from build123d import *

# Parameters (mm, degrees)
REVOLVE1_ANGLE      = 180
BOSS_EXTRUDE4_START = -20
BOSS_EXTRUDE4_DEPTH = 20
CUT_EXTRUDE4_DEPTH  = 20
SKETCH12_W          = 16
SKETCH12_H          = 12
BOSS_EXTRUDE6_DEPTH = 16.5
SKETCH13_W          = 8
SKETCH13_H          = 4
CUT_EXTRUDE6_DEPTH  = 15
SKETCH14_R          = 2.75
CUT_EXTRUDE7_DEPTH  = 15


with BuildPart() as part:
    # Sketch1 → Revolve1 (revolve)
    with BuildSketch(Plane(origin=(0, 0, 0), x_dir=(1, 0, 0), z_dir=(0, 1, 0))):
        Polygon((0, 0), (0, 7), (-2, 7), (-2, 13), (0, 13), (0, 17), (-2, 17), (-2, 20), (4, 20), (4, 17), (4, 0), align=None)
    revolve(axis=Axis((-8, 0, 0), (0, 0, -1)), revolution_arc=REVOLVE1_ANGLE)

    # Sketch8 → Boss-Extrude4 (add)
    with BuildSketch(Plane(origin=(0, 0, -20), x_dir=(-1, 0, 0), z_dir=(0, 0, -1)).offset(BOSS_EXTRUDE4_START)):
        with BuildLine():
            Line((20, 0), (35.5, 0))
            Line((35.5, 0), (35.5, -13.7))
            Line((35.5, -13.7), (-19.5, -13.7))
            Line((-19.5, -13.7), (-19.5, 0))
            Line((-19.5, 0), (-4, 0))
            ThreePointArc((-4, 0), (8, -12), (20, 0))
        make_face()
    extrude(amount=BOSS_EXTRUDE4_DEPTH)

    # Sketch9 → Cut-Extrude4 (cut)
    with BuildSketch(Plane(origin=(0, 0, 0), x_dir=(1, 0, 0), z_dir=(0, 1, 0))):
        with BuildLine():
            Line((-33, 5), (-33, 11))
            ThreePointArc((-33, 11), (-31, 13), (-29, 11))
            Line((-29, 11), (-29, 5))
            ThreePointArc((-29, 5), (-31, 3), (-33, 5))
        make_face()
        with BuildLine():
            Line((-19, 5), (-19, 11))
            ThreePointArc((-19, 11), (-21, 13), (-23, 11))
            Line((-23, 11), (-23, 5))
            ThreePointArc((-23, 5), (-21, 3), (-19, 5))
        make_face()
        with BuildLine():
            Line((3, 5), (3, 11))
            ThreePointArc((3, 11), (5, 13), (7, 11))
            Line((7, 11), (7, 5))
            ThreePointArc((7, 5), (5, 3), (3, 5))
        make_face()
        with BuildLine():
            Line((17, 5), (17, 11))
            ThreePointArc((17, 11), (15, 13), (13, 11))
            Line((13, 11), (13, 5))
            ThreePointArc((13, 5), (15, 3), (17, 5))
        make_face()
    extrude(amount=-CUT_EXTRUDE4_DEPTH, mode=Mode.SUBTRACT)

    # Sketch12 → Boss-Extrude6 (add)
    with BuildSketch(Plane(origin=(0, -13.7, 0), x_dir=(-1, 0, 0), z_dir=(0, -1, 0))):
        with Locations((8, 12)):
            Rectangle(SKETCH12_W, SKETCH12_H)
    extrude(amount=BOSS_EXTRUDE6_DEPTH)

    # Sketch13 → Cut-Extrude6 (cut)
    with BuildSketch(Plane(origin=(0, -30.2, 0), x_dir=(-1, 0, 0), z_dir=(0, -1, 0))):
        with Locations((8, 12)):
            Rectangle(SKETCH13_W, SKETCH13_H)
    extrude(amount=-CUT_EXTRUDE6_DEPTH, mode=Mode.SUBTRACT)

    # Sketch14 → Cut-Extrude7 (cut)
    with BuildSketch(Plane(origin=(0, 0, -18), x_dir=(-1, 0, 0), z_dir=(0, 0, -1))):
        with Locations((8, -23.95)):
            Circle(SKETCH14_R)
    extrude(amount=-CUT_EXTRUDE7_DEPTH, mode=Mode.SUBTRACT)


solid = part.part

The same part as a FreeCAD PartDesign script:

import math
import FreeCAD as App
import Part
import Sketcher
from FreeCAD import Vector


def add_polygon(sketch, points):
    """Adds a closed chain of lines whose ends are joined by coincident constraints."""
    first, n = sketch.GeometryCount, len(points)
    for a, b in zip(points, points[1:] + points[:1]):
        sketch.addGeometry(Part.LineSegment(App.Vector(*a, 0), App.Vector(*b, 0)), False)
    for i in range(n):
        sketch.addConstraint(Sketcher.Constraint("Coincident", first + i, 2, first + (i + 1) % n, 1))

doc = App.newDocument("Part")
body = doc.addObject("PartDesign::Body", "Body")

# Sketch on XZ plane
sketch1 = body.newObject("Sketcher::SketchObject", "Sketch")
sketch1.AttachmentSupport = (doc.getObject("XZ_Plane"), [""])
sketch1.MapMode = "FlatFace"
add_polygon(sketch1, [(0, -7), (0, 0), (4, 0), (4, -20), (-2, -20), (-2, -17), (0, -17), (0, -13), (-2, -13), (-2, -7)])  # lines 0-9
sketch1.addGeometry(Part.LineSegment(Vector(-8, 0, 0), Vector(-8, -20, 0)), True)  # axis
sketch1.addConstraint([
    Sketcher.Constraint("Vertical", 0),
    Sketcher.Constraint("Horizontal", 1),
    Sketcher.Constraint("Vertical", 2),
    Sketcher.Constraint("Horizontal", 3),
    Sketcher.Constraint("Vertical", 4),
    Sketcher.Constraint("Horizontal", 5),
    Sketcher.Constraint("Vertical", 6),
    Sketcher.Constraint("Horizontal", 7),
    Sketcher.Constraint("Vertical", 8),
    Sketcher.Constraint("Horizontal", 9),
    Sketcher.Constraint("Vertical", 10),
    Sketcher.Constraint("Coincident", 0, 2, -1, 1),
    Sketcher.Constraint("PointOnObject", 5, 2, -2),
    Sketcher.Constraint("PointOnObject", 10, 1, -1),
    Sketcher.Constraint("Horizontal", 3, 2, 10, 2),
    Sketcher.Constraint("Vertical", 4, 2, 7, 2),
    Sketcher.Constraint("Equal", 1, 6),
    Sketcher.Constraint("Equal", 3, 8),
    Sketcher.Constraint("DistanceX", 1, 1, 1, 2, 4.0),
    Sketcher.Constraint("DistanceX", 3, 2, 3, 1, 6.0),
    Sketcher.Constraint("DistanceY", 0, 1, 0, 2, 7.0),
    Sketcher.Constraint("DistanceY", 2, 2, 2, 1, 20.0),
    Sketcher.Constraint("DistanceX", 10, 1, -1, 1, 8.0),
])
revolution = body.newObject("PartDesign::Revolution", "Revolution")
revolution.Profile = sketch1
revolution.ReferenceAxis = (sketch1, ["Axis0"])
revolution.Angle = 180

# Sketch on XY plane
sketch2 = body.newObject("Sketcher::SketchObject", "Sketch001")
sketch2.AttachmentSupport = (doc.getObject("XY_Plane"), [""])
sketch2.MapMode = "FlatFace"
sketch2.addGeometry([
    Part.LineSegment(Vector(-36, 0, 0), Vector(-20, 0, 0)),  # 0
    Part.ArcOfCircle(Part.Circle(Vector(-8, 0, 0), Vector(0, 0, 1), 12), math.radians(180), math.radians(360)),  # 1
    Part.LineSegment(Vector(4, 0, 0), Vector(20, 0, 0)),  # 2
    Part.LineSegment(Vector(20, 0, 0), Vector(20, -14, 0)),  # 3
    Part.LineSegment(Vector(20, -14, 0), Vector(-36, -14, 0)),  # 4
    Part.LineSegment(Vector(-36, -14, 0), Vector(-36, 0, 0)),  # 5
], False)
sketch2.addConstraint([
    Sketcher.Constraint("Coincident", 0, 2, 1, 1),
    Sketcher.Constraint("Coincident", 1, 2, 2, 1),
    Sketcher.Constraint("Coincident", 2, 2, 3, 1),
    Sketcher.Constraint("Coincident", 3, 2, 4, 1),
    Sketcher.Constraint("Coincident", 4, 2, 5, 1),
    Sketcher.Constraint("Coincident", 5, 2, 0, 1),
    Sketcher.Constraint("Horizontal", 0),
    Sketcher.Constraint("Horizontal", 2),
    Sketcher.Constraint("Vertical", 3),
    Sketcher.Constraint("Horizontal", 4),
    Sketcher.Constraint("Vertical", 5),
    Sketcher.Constraint("PointOnObject", 1, 3, -1),
    Sketcher.Constraint("PointOnObject", 0, 2, -1),
    Sketcher.Constraint("PointOnObject", 1, 2, -1),
    Sketcher.Constraint("Equal", 0, 2),
    Sketcher.Constraint("Radius", 1, 12.0),
    Sketcher.Constraint("DistanceX", 4, 2, 4, 1, 55.0),
    Sketcher.Constraint("DistanceY", 3, 2, 3, 1, 13.7),
    Sketcher.Constraint("DistanceX", 1, 3, -1, 1, 8.0),
])
pad1 = body.newObject("PartDesign::Pad", "Pad")
pad1.Profile = sketch2
pad1.Length = 20
pad1.Reversed = True

# Sketch on XZ plane
sketch3 = body.newObject("Sketcher::SketchObject", "Sketch002")
sketch3.AttachmentSupport = (doc.getObject("XZ_Plane"), [""])
sketch3.MapMode = "FlatFace"
sketch3.addGeometry([
    Part.LineSegment(Vector(-33, -11, 0), Vector(-33, -5, 0)),  # 0
    Part.ArcOfCircle(Part.Circle(Vector(-31, -5, 0), Vector(0, 0, 1), 2), math.radians(0), math.radians(180)),  # 1
    Part.LineSegment(Vector(-29, -5, 0), Vector(-29, -11, 0)),  # 2
    Part.ArcOfCircle(Part.Circle(Vector(-31, -11, 0), Vector(0, 0, 1), 2), math.radians(180), math.radians(360)),  # 3
    Part.LineSegment(Vector(-19, -5, 0), Vector(-19, -11, 0)),  # 4
    Part.ArcOfCircle(Part.Circle(Vector(-21, -11, 0), Vector(0, 0, 1), 2), math.radians(180), math.radians(360)),  # 5
    Part.LineSegment(Vector(-23, -11, 0), Vector(-23, -5, 0)),  # 6
    Part.ArcOfCircle(Part.Circle(Vector(-21, -5, 0), Vector(0, 0, 1), 2), math.radians(0), math.radians(180)),  # 7
    Part.LineSegment(Vector(3, -11, 0), Vector(3, -5, 0)),  # 8
    Part.ArcOfCircle(Part.Circle(Vector(5, -5, 0), Vector(0, 0, 1), 2), math.radians(0), math.radians(180)),  # 9
    Part.LineSegment(Vector(7, -5, 0), Vector(7, -11, 0)),  # 10
    Part.ArcOfCircle(Part.Circle(Vector(5, -11, 0), Vector(0, 0, 1), 2), math.radians(180), math.radians(360)),  # 11
    Part.LineSegment(Vector(17, -5, 0), Vector(17, -11, 0)),  # 12
    Part.ArcOfCircle(Part.Circle(Vector(15, -11, 0), Vector(0, 0, 1), 2), math.radians(180), math.radians(360)),  # 13
    Part.LineSegment(Vector(13, -11, 0), Vector(13, -5, 0)),  # 14
    Part.ArcOfCircle(Part.Circle(Vector(15, -5, 0), Vector(0, 0, 1), 2), math.radians(0), math.radians(180)),  # 15
], False)
sketch3.addConstraint([
    Sketcher.Constraint("Tangent", 0, 2, 1, 2),
    Sketcher.Constraint("Tangent", 1, 1, 2, 1),
    Sketcher.Constraint("Tangent", 2, 2, 3, 2),
    Sketcher.Constraint("Tangent", 3, 1, 0, 1),
    Sketcher.Constraint("Tangent", 4, 2, 5, 2),
    Sketcher.Constraint("Tangent", 5, 1, 6, 1),
    Sketcher.Constraint("Tangent", 6, 2, 7, 2),
    Sketcher.Constraint("Tangent", 7, 1, 4, 1),
    Sketcher.Constraint("Tangent", 8, 2, 9, 2),
    Sketcher.Constraint("Tangent", 9, 1, 10, 1),
    Sketcher.Constraint("Tangent", 10, 2, 11, 2),
    Sketcher.Constraint("Tangent", 11, 1, 8, 1),
    Sketcher.Constraint("Tangent", 12, 2, 13, 2),
    Sketcher.Constraint("Tangent", 13, 1, 14, 1),
    Sketcher.Constraint("Tangent", 14, 2, 15, 2),
    Sketcher.Constraint("Tangent", 15, 1, 12, 1),
    Sketcher.Constraint("Vertical", 0),
    Sketcher.Constraint("Vertical", 2),
    Sketcher.Constraint("Vertical", 4),
    Sketcher.Constraint("Vertical", 6),
    Sketcher.Constraint("Vertical", 8),
    Sketcher.Constraint("Vertical", 10),
    Sketcher.Constraint("Vertical", 12),
    Sketcher.Constraint("Vertical", 14),
    Sketcher.Constraint("Equal", 3, 5),
    Sketcher.Constraint("Equal", 7, 9),
    Sketcher.Constraint("Equal", 11, 13),
    Sketcher.Constraint("Horizontal", 3, 3, 5, 3),
    Sketcher.Constraint("Horizontal", 1, 3, 7, 3),
    Sketcher.Constraint("Horizontal", 7, 3, 9, 3),
    Sketcher.Constraint("Horizontal", 5, 3, 11, 3),
    Sketcher.Constraint("Horizontal", 11, 3, 13, 3),
    Sketcher.Constraint("Horizontal", 9, 3, 15, 3),
    Sketcher.Constraint("Radius", 1, 2.0),
    Sketcher.Constraint("DistanceY", 0, 1, 0, 2, 6.0),
    Sketcher.Constraint("DistanceX", 1, 3, -1, 1, 31.0),
    Sketcher.Constraint("DistanceY", 1, 3, -1, 1, 5.0),
    Sketcher.Constraint("DistanceX", 5, 3, -1, 1, 21.0),
    Sketcher.Constraint("DistanceX", -1, 1, 9, 3, 5.0),
    Sketcher.Constraint("DistanceX", -1, 1, 13, 3, 15.0),
])
pocket1 = body.newObject("PartDesign::Pocket", "Pocket")
pocket1.Profile = sketch3
pocket1.Length = 20
pocket1.Reversed = True

# Sketch on XZ plane
sketch4 = body.newObject("Sketcher::SketchObject", "Sketch003")
sketch4.AttachmentSupport = (doc.getObject("XZ_Plane"), [""])
sketch4.MapMode = "FlatFace"
sketch4.AttachmentOffset = App.Placement(Vector(0, 0, 13.7), App.Rotation())
add_polygon(sketch4, [(0, -18), (0, -6), (-16, -6), (-16, -18)])  # lines 0-3
sketch4.addConstraint([
    Sketcher.Constraint("Vertical", 0),
    Sketcher.Constraint("Horizontal", 1),
    Sketcher.Constraint("Vertical", 2),
    Sketcher.Constraint("Horizontal", 3),
    Sketcher.Constraint("PointOnObject", 0, 2, -2),
    Sketcher.Constraint("DistanceX", 1, 2, 1, 1, 16.0),
    Sketcher.Constraint("DistanceY", 0, 1, 0, 2, 12.0),
    Sketcher.Constraint("DistanceY", 0, 2, -1, 1, 6.0),
])
pad2 = body.newObject("PartDesign::Pad", "Pad001")
pad2.Profile = sketch4
pad2.Length = 16.5

# Sketch on XZ plane
sketch5 = body.newObject("Sketcher::SketchObject", "Sketch004")
sketch5.AttachmentSupport = (doc.getObject("XZ_Plane"), [""])
sketch5.MapMode = "FlatFace"
sketch5.AttachmentOffset = App.Placement(Vector(0, 0, 30.2), App.Rotation())
add_polygon(sketch5, [(-4, -14), (-4, -10), (-12, -10), (-12, -14)])  # lines 0-3
sketch5.addConstraint([
    Sketcher.Constraint("Vertical", 0),
    Sketcher.Constraint("Horizontal", 1),
    Sketcher.Constraint("Vertical", 2),
    Sketcher.Constraint("Horizontal", 3),
    Sketcher.Constraint("DistanceX", 1, 2, 1, 1, 8.0),
    Sketcher.Constraint("DistanceY", 0, 1, 0, 2, 4.0),
    Sketcher.Constraint("DistanceX", 0, 2, -1, 1, 4.0),
    Sketcher.Constraint("DistanceY", 0, 2, -1, 1, 10.0),
])
pocket2 = body.newObject("PartDesign::Pocket", "Pocket001")
pocket2.Profile = sketch5
pocket2.Length = 15

# Sketch on XY plane
sketch6 = body.newObject("Sketcher::SketchObject", "Sketch005")
sketch6.AttachmentSupport = (doc.getObject("XY_Plane"), [""])
sketch6.MapMode = "FlatFace"
sketch6.AttachmentOffset = App.Placement(Vector(0, 0, -18), App.Rotation())
sketch6.addGeometry(Part.Circle(Vector(-8, -23.9, 0), Vector(0, 0, 1), 2.8), False)
sketch6.addConstraint([
    Sketcher.Constraint("Diameter", 0, 5.5),
    Sketcher.Constraint("DistanceX", 0, 3, -1, 1, 8.0),
    Sketcher.Constraint("DistanceY", 0, 3, -1, 1, 23.95),
])
pocket3 = body.newObject("PartDesign::Pocket", "Pocket002")
pocket3.Profile = sketch6
pocket3.Length = 15
pocket3.Reversed = True

doc.recompute()
